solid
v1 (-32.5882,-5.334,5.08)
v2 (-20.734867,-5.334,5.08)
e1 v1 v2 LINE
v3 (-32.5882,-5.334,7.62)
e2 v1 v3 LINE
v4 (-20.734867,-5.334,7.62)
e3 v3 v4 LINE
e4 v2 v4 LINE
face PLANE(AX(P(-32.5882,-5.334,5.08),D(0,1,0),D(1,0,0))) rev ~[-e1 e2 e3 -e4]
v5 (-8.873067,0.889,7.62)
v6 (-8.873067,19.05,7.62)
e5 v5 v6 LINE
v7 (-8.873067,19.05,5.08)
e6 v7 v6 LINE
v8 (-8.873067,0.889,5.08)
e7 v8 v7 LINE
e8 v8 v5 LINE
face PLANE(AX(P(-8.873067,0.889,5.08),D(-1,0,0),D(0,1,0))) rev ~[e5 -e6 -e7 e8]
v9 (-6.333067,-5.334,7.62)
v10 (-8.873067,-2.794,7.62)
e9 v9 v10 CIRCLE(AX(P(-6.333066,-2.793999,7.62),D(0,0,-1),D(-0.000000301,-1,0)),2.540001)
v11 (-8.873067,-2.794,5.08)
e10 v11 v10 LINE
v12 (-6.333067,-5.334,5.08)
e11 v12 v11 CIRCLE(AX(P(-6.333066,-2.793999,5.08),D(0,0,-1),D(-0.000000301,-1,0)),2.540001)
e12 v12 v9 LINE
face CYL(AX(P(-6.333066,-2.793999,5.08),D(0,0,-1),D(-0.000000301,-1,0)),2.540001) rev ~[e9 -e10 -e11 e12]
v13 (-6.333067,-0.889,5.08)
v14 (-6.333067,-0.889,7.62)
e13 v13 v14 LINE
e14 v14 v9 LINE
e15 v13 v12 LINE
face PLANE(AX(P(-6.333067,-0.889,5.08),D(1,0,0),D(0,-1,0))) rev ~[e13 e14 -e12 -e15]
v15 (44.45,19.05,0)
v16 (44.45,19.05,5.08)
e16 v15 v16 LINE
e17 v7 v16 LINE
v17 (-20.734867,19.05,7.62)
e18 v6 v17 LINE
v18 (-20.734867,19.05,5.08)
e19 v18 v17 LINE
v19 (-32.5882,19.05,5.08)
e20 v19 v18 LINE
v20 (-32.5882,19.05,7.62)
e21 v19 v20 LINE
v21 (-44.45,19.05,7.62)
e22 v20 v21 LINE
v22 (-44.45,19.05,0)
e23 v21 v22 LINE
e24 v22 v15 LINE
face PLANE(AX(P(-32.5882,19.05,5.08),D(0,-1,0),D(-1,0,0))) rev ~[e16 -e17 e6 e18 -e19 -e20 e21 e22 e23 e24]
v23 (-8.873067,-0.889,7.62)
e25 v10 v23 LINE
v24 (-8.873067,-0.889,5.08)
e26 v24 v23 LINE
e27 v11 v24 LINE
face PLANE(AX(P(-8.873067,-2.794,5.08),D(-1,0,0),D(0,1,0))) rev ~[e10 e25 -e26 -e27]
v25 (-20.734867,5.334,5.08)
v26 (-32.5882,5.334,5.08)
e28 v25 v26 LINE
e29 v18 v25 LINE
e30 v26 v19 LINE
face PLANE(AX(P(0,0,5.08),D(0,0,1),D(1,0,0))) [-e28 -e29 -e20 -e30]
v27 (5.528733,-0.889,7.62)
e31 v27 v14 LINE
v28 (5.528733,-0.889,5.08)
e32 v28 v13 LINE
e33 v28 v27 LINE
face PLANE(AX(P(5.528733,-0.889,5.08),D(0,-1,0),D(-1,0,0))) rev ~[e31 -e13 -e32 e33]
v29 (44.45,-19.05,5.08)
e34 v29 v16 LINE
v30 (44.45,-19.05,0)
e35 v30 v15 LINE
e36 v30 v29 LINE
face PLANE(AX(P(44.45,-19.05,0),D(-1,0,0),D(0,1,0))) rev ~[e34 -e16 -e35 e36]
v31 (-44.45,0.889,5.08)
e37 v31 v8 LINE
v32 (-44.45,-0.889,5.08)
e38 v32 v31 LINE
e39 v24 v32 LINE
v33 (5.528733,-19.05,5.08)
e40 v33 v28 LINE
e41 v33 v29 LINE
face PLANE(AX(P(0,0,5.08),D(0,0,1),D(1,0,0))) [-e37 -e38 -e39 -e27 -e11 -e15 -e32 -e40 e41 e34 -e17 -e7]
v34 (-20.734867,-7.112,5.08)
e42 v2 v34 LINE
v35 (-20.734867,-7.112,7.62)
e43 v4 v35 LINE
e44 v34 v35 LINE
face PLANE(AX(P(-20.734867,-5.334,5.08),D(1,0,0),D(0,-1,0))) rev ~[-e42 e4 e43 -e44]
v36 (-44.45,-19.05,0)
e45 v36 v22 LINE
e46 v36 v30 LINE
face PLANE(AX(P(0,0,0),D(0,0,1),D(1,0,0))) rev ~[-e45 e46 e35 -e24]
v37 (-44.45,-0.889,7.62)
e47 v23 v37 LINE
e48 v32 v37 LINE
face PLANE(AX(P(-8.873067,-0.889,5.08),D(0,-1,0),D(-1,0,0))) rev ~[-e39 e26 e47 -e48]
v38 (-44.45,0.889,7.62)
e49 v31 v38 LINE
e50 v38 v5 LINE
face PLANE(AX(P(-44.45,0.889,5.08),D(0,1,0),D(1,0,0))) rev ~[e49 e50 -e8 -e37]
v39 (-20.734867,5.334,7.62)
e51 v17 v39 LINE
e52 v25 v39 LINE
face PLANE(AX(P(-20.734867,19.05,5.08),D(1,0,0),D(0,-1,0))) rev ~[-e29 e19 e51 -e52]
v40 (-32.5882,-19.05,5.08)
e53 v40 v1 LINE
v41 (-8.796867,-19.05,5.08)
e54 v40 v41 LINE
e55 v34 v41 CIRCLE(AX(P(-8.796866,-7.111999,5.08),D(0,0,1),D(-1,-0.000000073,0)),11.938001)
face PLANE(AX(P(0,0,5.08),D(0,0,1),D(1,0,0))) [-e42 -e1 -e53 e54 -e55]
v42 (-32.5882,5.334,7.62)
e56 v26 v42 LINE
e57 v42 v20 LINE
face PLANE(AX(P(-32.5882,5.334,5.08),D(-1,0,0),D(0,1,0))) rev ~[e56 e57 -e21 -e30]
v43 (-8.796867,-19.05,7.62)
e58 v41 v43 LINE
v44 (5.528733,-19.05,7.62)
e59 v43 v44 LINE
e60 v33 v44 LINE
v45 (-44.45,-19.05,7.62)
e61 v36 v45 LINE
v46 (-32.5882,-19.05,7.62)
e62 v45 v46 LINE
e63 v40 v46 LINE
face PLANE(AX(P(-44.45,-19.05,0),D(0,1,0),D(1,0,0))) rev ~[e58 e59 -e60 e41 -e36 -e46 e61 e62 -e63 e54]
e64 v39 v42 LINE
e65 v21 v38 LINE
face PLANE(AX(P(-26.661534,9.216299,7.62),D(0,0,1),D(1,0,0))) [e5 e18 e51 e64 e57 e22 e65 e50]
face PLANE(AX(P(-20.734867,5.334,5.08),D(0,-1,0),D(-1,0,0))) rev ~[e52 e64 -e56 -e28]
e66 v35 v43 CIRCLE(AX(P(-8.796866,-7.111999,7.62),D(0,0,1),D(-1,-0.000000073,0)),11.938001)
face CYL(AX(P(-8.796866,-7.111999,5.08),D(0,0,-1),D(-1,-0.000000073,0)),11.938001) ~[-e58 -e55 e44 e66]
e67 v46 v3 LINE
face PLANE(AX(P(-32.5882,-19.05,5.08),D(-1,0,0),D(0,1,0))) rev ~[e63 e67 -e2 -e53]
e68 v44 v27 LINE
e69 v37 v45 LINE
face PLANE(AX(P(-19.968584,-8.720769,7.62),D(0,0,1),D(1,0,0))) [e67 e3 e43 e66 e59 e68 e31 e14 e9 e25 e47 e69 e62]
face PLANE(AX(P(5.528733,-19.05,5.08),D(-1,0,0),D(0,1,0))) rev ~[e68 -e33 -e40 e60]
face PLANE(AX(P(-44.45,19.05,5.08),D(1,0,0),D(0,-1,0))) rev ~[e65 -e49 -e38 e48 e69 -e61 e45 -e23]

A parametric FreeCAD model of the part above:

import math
import FreeCAD as App
import Part
import Sketcher
Q = App.Units.Quantity

doc = App.newDocument("Part")
params = doc.addObject("Spreadsheet::Sheet", "Params")
for row, (alias, value) in enumerate([
    ("sketch1_width", "3.5 in"),
    ("sketch1_height", "1.5 in"),
    ("pad1_length", "0.2 in"),
    ("sketch2_radius", "0.1 in"),
    ("sketch2_radius2", "0.47 in"),
    ("sketch2_height", "0.54 in"),
    ("sketch2_width", "0.467 in"),
    ("sketch2_height2", "0.715 in"),
    ("pad2_length", "0.1 in"),
], start=1):
    params.set(f"A{row}", alias)
    params.set(f"B{row}", "=" + value)
    params.setAlias(f"B{row}", alias)

body = doc.addObject("PartDesign::Body", "Body")

sketch1 = body.newObject("Sketcher::SketchObject", "Sketch")
sketch1.AttachmentSupport = (doc.getObject("XY_Plane"), [""])
sketch1.MapMode = "FlatFace"
sketch1.addGeometry([
    Part.LineSegment(App.Vector(-44, 19, 0), App.Vector(-44, -19, 0)),
    Part.LineSegment(App.Vector(-44, -19, 0), App.Vector(44, -19, 0)),
    Part.LineSegment(App.Vector(44, -19, 0), App.Vector(44, 19, 0)),
    Part.LineSegment(App.Vector(44, 19, 0), App.Vector(-44, 19, 0)),
], False)
sketch1.addConstraint([
    Sketcher.Constraint("Coincident", 0, 2, 1, 1),
    Sketcher.Constraint("Coincident", 1, 2, 2, 1),
    Sketcher.Constraint("Coincident", 2, 2, 3, 1),
    Sketcher.Constraint("Coincident", 3, 2, 0, 1),
    Sketcher.Constraint("Vertical", 0),
    Sketcher.Constraint("Horizontal", 1),
    Sketcher.Constraint("Vertical", 2),
    Sketcher.Constraint("Horizontal", 3),
    Sketcher.Constraint("Symmetric", 0, 2, 2, 2, -1, 1),
    Sketcher.Constraint("DistanceX", 1, 1, 1, 2, Q("3.5 in")),
    Sketcher.Constraint("DistanceY", 0, 2, 0, 1, Q("1.5 in")),
])
sketch1.setExpression("Constraints[9]", "Params.sketch1_width")
sketch1.setExpression("Constraints[10]", "Params.sketch1_height")
pad1 = body.newObject("PartDesign::Pad", "Pad")
pad1.Profile = sketch1
pad1.setExpression("Length", "Params.pad1_length")

sketch2 = body.newObject("Sketcher::SketchObject", "Sketch001")
sketch2.AttachmentSupport = (doc.getObject("XY_Plane"), [""])
sketch2.MapMode = "FlatFace"
sketch2.AttachmentOffset = App.Placement(App.Vector(0, 0, 0.2 * 25.4), App.Rotation())
sketch2.addGeometry([
    Part.LineSegment(App.Vector(-44.5, 19.1, 0), App.Vector(-44.5, 0.9, 0)),
    Part.LineSegment(App.Vector(-44.5, 0.9, 0), App.Vector(-8.9, 0.9, 0)),
    Part.LineSegment(App.Vector(-8.9, 0.9, 0), App.Vector(-8.9, 19.1, 0)),
    Part.LineSegment(App.Vector(-8.9, 19.1, 0), App.Vector(-20.7, 19.1, 0)),
    Part.LineSegment(App.Vector(-20.7, 19.1, 0), App.Vector(-20.7, 5.3, 0)),
    Part.LineSegment(App.Vector(-20.7, 5.3, 0), App.Vector(-32.6, 5.3, 0)),
    Part.LineSegment(App.Vector(-32.6, 5.3, 0), App.Vector(-32.6, 19.1, 0)),
    Part.LineSegment(App.Vector(-32.6, 19.1, 0), App.Vector(-44.5, 19.1, 0)),
    Part.LineSegment(App.Vector(-8.9, -0.9, 0), App.Vector(-44.5, -0.9, 0)),
    Part.LineSegment(App.Vector(-44.5, -0.9, 0), App.Vector(-44.5, -19.1, 0)),
    Part.LineSegment(App.Vector(-44.5, -19.1, 0), App.Vector(-32.6, -19.1, 0)),
    Part.LineSegment(App.Vector(-32.6, -19.1, 0), App.Vector(-32.6, -5.3, 0)),
    Part.LineSegment(App.Vector(-32.6, -5.3, 0), App.Vector(-20.7, -5.3, 0)),
    Part.LineSegment(App.Vector(-20.7, -5.3, 0), App.Vector(-20.7, -7.1, 0)),
    Part.ArcOfCircle(Part.Circle(App.Vector(-8.8, -7.1, 0), App.Vector(0, 0, 1), 11.9), math.radians(-180), math.radians(-90)),
    Part.LineSegment(App.Vector(-8.8, -19.1, 0), App.Vector(5.5, -19.1, 0)),
    Part.LineSegment(App.Vector(5.5, -19.1, 0), App.Vector(5.5, -0.9, 0)),
    Part.LineSegment(App.Vector(5.5, -0.9, 0), App.Vector(-6.3, -0.9, 0)),
    Part.LineSegment(App.Vector(-6.3, -0.9, 0), App.Vector(-6.3, -5.3, 0)),
    Part.ArcOfCircle(Part.Circle(App.Vector(-6.3, -2.8, 0), App.Vector(0, 0, 1), 2.5), math.radians(-180), math.radians(-90)),
    Part.LineSegment(App.Vector(-8.9, -2.8, 0), App.Vector(-8.9, -0.9, 0)),
], False)
sketch2.addConstraint([
    Sketcher.Constraint("Coincident", 0, 2, 1, 1),
    Sketcher.Constraint("Coincident", 1, 2, 2, 1),
    Sketcher.Constraint("Coincident", 2, 2, 3, 1),
    Sketcher.Constraint("Coincident", 3, 2, 4, 1),
    Sketcher.Constraint("Coincident", 4, 2, 5, 1),
    Sketcher.Constraint("Coincident", 5, 2, 6, 1),
    Sketcher.Constraint("Coincident", 6, 2, 7, 1),
    Sketcher.Constraint("Coincident", 7, 2, 0, 1),
    Sketcher.Constraint("Coincident", 8, 2, 9, 1),
    Sketcher.Constraint("Coincident", 9, 2, 10, 1),
    Sketcher.Constraint("Coincident", 10, 2, 11, 1),
    Sketcher.Constraint("Coincident", 11, 2, 12, 1),
    Sketcher.Constraint("Coincident", 12, 2, 13, 1),
    Sketcher.Constraint("Tangent", 13, 2, 14, 1),
    Sketcher.Constraint("Tangent", 14, 2, 15, 1),
    Sketcher.Constraint("Coincident", 15, 2, 16, 1),
    Sketcher.Constraint("Coincident", 16, 2, 17, 1),
    Sketcher.Constraint("Coincident", 17, 2, 18, 1),
    Sketcher.Constraint("Coincident", 18, 2, 19, 2),
    Sketcher.Constraint("Tangent", 19, 1, 20, 1),
    Sketcher.Constraint("Coincident", 20, 2, 8, 1),
    Sketcher.Constraint("Vertical", 0),
    Sketcher.Constraint("Horizontal", 1),
    Sketcher.Constraint("Vertical", 2),
    Sketcher.Constraint("Horizontal", 3),
    Sketcher.Constraint("Vertical", 4),
    Sketcher.Constraint("Horizontal", 5),
    Sketcher.Constraint("Vertical", 6),
    Sketcher.Constraint("Horizontal", 7),
    Sketcher.Constraint("Horizontal", 8),
    Sketcher.Constraint("Vertical", 9),
    Sketcher.Constraint("Horizontal", 10),
    Sketcher.Constraint("Vertical", 11),
    Sketcher.Constraint("Horizontal", 12),
    Sketcher.Constraint("Vertical", 13),
    Sketcher.Constraint("Horizontal", 15),
    Sketcher.Constraint("Vertical", 16),
    Sketcher.Constraint("Horizontal", 17),
    Sketcher.Constraint("Vertical", 18),
    Sketcher.Constraint("Vertical", 20),
    Sketcher.Constraint("Symmetric", 0, 2, 8, 2, -1),
    Sketcher.Constraint("Symmetric", 6, 2, 10, 2, -1),
    Sketcher.Constraint("Symmetric", 4, 2, 12, 2, -1),
    Sketcher.Constraint("Horizontal", 3, 2, 6, 2),
    Sketcher.Constraint("Horizontal", 10, 2, 14, 2),
    Sketcher.Constraint("Horizontal", 8, 2, 16, 2),
    Sketcher.Constraint("Horizontal", 12, 2, 18, 2),
    Sketcher.Constraint("Vertical", 19, 3, 17, 2),
    Sketcher.Constraint("Vertical", 2, 2, 19, 1),
    Sketcher.Constraint("Equal", 3, 7),
    Sketcher.Constraint("Equal", 10, 17),
    Sketcher.Constraint("Radius", 19, Q("0.1 in")),
    Sketcher.Constraint("Radius", 14, Q("0.47 in")),
    Sketcher.Constraint("DistanceY", 4, 2, 4, 1, Q("0.54 in")),
    Sketcher.Constraint("DistanceX", 3, 2, 3, 1, Q("0.467 in")),
    Sketcher.Constraint("DistanceY", 0, 2, 0, 1, Q("0.715 in")),
    Sketcher.Constraint("DistanceY", 14, 3, -1, 1, Q("0.28 in")),
    Sketcher.Constraint("DistanceX", 0, 2, -1, 1, Q("1.75 in")),
    Sketcher.Constraint("DistanceX", 1, 1, 1, 2, Q("35.576933 mm")),
])
sketch2.setExpression("Constraints[51]", "Params.sketch2_radius")
sketch2.setExpression("Constraints[52]", "Params.sketch2_radius2")
sketch2.setExpression("Constraints[53]", "Params.sketch2_height")
sketch2.setExpression("Constraints[54]", "Params.sketch2_width")
sketch2.setExpression("Constraints[55]", "Params.sketch2_height2")
pad2 = body.newObject("PartDesign::Pad", "Pad001")
pad2.Profile = sketch2
pad2.setExpression("Length", "Params.pad2_length")

doc.recompute()
